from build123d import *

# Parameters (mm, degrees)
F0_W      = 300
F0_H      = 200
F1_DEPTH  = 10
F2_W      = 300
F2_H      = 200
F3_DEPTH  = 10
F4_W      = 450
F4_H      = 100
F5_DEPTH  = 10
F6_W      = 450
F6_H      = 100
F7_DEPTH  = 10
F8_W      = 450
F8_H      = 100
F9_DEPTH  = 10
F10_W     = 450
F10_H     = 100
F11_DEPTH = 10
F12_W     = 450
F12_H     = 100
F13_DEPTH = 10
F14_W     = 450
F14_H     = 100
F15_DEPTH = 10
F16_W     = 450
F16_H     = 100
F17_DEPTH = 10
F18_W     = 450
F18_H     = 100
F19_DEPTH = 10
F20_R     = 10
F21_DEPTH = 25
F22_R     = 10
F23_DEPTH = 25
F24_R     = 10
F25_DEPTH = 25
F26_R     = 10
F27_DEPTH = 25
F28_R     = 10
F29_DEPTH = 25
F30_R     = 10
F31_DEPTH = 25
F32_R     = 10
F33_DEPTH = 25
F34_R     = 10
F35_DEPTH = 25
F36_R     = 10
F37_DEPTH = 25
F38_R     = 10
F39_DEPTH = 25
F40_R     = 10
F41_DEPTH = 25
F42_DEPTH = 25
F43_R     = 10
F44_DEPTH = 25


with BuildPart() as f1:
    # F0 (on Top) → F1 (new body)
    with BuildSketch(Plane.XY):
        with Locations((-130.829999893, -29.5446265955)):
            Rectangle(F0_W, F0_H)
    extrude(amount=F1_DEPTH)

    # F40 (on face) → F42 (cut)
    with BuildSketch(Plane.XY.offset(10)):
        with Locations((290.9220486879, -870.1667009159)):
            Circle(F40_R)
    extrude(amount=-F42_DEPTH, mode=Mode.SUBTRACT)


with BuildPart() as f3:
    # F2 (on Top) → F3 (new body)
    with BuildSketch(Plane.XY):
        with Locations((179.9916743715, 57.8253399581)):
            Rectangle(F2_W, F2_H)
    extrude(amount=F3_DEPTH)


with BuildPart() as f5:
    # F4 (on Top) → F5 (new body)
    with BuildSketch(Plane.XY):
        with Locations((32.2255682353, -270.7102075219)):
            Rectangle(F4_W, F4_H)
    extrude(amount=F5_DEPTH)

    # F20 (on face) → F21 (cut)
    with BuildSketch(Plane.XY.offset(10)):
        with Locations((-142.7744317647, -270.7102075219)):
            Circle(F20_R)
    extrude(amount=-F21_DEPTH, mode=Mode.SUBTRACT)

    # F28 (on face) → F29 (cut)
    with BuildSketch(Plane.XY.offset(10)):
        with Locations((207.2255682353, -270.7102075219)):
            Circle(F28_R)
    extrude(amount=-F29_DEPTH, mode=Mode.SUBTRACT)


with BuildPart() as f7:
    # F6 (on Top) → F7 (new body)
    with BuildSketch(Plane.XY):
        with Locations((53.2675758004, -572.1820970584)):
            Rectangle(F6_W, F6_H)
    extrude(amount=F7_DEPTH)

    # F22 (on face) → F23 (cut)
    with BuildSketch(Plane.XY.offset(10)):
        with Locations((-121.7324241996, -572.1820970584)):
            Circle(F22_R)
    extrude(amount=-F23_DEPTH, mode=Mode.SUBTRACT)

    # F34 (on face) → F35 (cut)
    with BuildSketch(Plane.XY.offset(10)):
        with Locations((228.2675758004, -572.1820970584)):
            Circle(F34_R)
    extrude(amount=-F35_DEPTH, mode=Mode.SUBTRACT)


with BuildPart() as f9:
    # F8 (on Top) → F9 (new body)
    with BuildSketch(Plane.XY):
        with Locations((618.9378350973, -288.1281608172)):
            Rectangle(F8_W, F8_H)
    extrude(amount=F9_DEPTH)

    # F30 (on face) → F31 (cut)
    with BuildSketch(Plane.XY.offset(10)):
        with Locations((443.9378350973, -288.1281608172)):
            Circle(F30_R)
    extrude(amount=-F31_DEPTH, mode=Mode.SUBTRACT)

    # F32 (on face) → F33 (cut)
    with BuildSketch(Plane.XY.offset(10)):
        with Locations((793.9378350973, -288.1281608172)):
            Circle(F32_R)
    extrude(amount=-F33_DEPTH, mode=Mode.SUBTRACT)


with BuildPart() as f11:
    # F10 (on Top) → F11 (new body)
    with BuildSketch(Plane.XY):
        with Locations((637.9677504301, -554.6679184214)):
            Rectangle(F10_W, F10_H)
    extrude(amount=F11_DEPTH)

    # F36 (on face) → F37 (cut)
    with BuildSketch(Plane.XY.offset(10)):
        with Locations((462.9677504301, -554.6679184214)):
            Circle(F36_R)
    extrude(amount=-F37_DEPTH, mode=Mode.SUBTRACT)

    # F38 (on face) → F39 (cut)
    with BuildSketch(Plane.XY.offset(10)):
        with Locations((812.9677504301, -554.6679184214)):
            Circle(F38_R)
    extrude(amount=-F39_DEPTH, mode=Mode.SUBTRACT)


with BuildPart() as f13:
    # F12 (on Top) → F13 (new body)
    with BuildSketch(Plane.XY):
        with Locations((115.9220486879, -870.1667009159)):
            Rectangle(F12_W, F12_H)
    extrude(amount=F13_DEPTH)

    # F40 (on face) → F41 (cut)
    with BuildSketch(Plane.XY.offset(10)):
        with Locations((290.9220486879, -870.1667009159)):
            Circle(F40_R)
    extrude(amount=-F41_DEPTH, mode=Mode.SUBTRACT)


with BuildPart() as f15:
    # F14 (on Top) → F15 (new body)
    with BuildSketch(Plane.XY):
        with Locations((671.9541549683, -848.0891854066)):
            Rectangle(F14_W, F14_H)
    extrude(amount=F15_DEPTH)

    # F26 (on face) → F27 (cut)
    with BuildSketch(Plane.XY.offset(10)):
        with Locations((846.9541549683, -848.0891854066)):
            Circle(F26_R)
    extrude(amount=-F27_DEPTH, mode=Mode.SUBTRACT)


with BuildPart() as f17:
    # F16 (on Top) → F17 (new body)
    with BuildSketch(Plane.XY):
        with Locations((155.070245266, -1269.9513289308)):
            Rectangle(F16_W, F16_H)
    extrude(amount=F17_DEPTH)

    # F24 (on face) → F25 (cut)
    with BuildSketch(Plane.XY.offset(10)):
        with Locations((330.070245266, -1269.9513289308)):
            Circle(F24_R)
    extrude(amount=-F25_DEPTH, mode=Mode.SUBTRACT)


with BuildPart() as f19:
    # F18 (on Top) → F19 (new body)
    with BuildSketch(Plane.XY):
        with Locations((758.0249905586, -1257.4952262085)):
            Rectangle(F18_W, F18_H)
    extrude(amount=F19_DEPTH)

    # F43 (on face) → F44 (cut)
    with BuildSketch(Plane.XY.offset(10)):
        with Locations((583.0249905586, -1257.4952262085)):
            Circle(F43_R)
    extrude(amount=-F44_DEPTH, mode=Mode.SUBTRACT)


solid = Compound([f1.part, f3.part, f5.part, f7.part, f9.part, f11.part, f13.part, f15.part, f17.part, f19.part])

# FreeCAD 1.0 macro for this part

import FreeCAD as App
import Part
import Sketcher


def add_polygon(sketch, points):
    """Adds a closed chain of lines whose ends are joined by coincident constraints."""
    first, n = sketch.GeometryCount, len(points)
    for a, b in zip(points, points[1:] + points[:1]):
        sketch.addGeometry(Part.LineSegment(App.Vector(*a, 0), App.Vector(*b, 0)), False)
    for i in range(n):
        sketch.addConstraint(Sketcher.Constraint("Coincident", first + i, 2, first + (i + 1) % n, 1))

doc = App.newDocument("Part")
body = doc.addObject("PartDesign::Body", "Body")

sketch1 = body.newObject("Sketcher::SketchObject", "Sketch")
sketch1.AttachmentSupport = (doc.getObject("XY_Plane"), [""])
sketch1.MapMode = "FlatFace"
add_polygon(sketch1, [(-280.83, 70.455373), (-280.83, -129.544627), (19.17, -129.544627), (19.17, 70.455373)])
sketch1.addConstraint(Sketcher.Constraint("Vertical", 0))
sketch1.addConstraint(Sketcher.Constraint("Horizontal", 1))
sketch1.addConstraint(Sketcher.Constraint("Vertical", 2))
sketch1.addConstraint(Sketcher.Constraint("Horizontal", 3))
sketch1.addConstraint(Sketcher.Constraint("DistanceX", 1, 1, 1, 2, 300.0))
sketch1.addConstraint(Sketcher.Constraint("DistanceY", 0, 2, 0, 1, 200.0))
sketch1.addConstraint(Sketcher.Constraint("DistanceX", 0, 2, -1, 1, 280.83))
sketch1.addConstraint(Sketcher.Constraint("DistanceY", 0, 2, -1, 1, 129.544627))
pad1 = body.newObject("PartDesign::Pad", "Pad")
pad1.Profile = sketch1
pad1.Length = 10

sketch2 = body.newObject("Sketcher::SketchObject", "Sketch001")
sketch2.AttachmentSupport = (doc.getObject("XY_Plane"), [""])
sketch2.MapMode = "FlatFace"
sketch2.AttachmentOffset = App.Placement(App.Vector(0, 0, 10), App.Rotation())
sketch2.addGeometry(Part.Circle(App.Vector(290.922049, -870.166701, 0), App.Vector(0, 0, 1), 10), False)
sketch2.addConstraint(Sketcher.Constraint("Diameter", 0, 20.0))
sketch2.addConstraint(Sketcher.Constraint("DistanceY", 0, 3, -1, 1, 870.166701))
sketch2.addConstraint(Sketcher.Constraint("DistanceX", -1, 1, 0, 3, 290.922049))
pocket1 = body.newObject("PartDesign::Pocket", "Pocket")
pocket1.Profile = sketch2
pocket1.Length = 25
body2 = doc.addObject("PartDesign::Body", "Body001")

sketch3 = body2.newObject("Sketcher::SketchObject", "Sketch002")
sketch3.AttachmentSupport = (doc.getObject("XY_Plane001"), [""])
sketch3.MapMode = "FlatFace"
add_polygon(sketch3, [(29.991674, 157.82534), (29.991674, -42.17466), (329.991674, -42.17466), (329.991674, 157.82534)])
sketch3.addConstraint(Sketcher.Constraint("Vertical", 0))
sketch3.addConstraint(Sketcher.Constraint("Horizontal", 1))
sketch3.addConstraint(Sketcher.Constraint("Vertical", 2))
sketch3.addConstraint(Sketcher.Constraint("Horizontal", 3))
sketch3.addConstraint(Sketcher.Constraint("DistanceX", 1, 1, 1, 2, 300.0))
sketch3.addConstraint(Sketcher.Constraint("DistanceY", 0, 2, 0, 1, 200.0))
sketch3.addConstraint(Sketcher.Constraint("DistanceY", 0, 2, -1, 1, 42.17466))
sketch3.addConstraint(Sketcher.Constraint("DistanceX", -1, 1, 0, 2, 29.991674))
pad2 = body2.newObject("PartDesign::Pad", "Pad001")
pad2.Profile = sketch3
pad2.Length = 10
body3 = doc.addObject("PartDesign::Body", "Body002")

sketch4 = body3.newObject("Sketcher::SketchObject", "Sketch003")
sketch4.AttachmentSupport = (doc.getObject("XY_Plane002"), [""])
sketch4.MapMode = "FlatFace"
add_polygon(sketch4, [(-192.774432, -220.710208), (-192.774432, -320.710208), (257.225568, -320.710208), (257.225568, -220.710208)])
sketch4.addConstraint(Sketcher.Constraint("Vertical", 0))
sketch4.addConstraint(Sketcher.Constraint("Horizontal", 1))
sketch4.addConstraint(Sketcher.Constraint("Vertical", 2))
sketch4.addConstraint(Sketcher.Constraint("Horizontal", 3))
sketch4.addConstraint(Sketcher.Constraint("DistanceX", 1, 1, 1, 2, 450.0))
sketch4.addConstraint(Sketcher.Constraint("DistanceY", 0, 2, 0, 1, 100.0))
sketch4.addConstraint(Sketcher.Constraint("DistanceX", 0, 2, -1, 1, 192.774432))
sketch4.addConstraint(Sketcher.Constraint("DistanceY", 0, 2, -1, 1, 320.710208))
pad3 = body3.newObject("PartDesign::Pad", "Pad002")
pad3.Profile = sketch4
pad3.Length = 10

sketch5 = body3.newObject("Sketcher::SketchObject", "Sketch004")
sketch5.AttachmentSupport = (doc.getObject("XY_Plane002"), [""])
sketch5.MapMode = "FlatFace"
sketch5.AttachmentOffset = App.Placement(App.Vector(0, 0, 10), App.Rotation())
sketch5.addGeometry(Part.Circle(App.Vector(-142.774432, -270.710208, 0), App.Vector(0, 0, 1), 10), False)
sketch5.addConstraint(Sketcher.Constraint("Diameter", 0, 20.0))
sketch5.addConstraint(Sketcher.Constraint("DistanceX", 0, 3, -1, 1, 142.774432))
sketch5.addConstraint(Sketcher.Constraint("DistanceY", 0, 3, -1, 1, 270.710208))
pocket2 = body3.newObject("PartDesign::Pocket", "Pocket001")
pocket2.Profile = sketch5
pocket2.Length = 25

sketch6 = body3.newObject("Sketcher::SketchObject", "Sketch005")
sketch6.AttachmentSupport = (doc.getObject("XY_Plane002"), [""])
sketch6.MapMode = "FlatFace"
sketch6.AttachmentOffset = App.Placement(App.Vector(0, 0, 10), App.Rotation())
sketch6.addGeometry(Part.Circle(App.Vector(207.225568, -270.710208, 0), App.Vector(0, 0, 1), 10), False)
sketch6.addConstraint(Sketcher.Constraint("Diameter", 0, 20.0))
sketch6.addConstraint(Sketcher.Constraint("DistanceX", -1, 1, 0, 3, 207.225568))
sketch6.addConstraint(Sketcher.Constraint("DistanceY", 0, 3, -1, 1, 270.710208))
pocket3 = body3.newObject("PartDesign::Pocket", "Pocket002")
pocket3.Profile = sketch6
pocket3.Length = 25
body4 = doc.addObject("PartDesign::Body", "Body003")

sketch7 = body4.newObject("Sketcher::SketchObject", "Sketch006")
sketch7.AttachmentSupport = (doc.getObject("XY_Plane003"), [""])
sketch7.MapMode = "FlatFace"
add_polygon(sketch7, [(-171.732424, -522.182097), (-171.732424, -622.182097), (278.267576, -622.182097), (278.267576, -522.182097)])
sketch7.addConstraint(Sketcher.Constraint("Vertical", 0))
sketch7.addConstraint(Sketcher.Constraint("Horizontal", 1))
sketch7.addConstraint(Sketcher.Constraint("Vertical", 2))
sketch7.addConstraint(Sketcher.Constraint("Horizontal", 3))
sketch7.addConstraint(Sketcher.Constraint("DistanceX", 1, 1, 1, 2, 450.0))
sketch7.addConstraint(Sketcher.Constraint("DistanceY", 0, 2, 0, 1, 100.0))
sketch7.addConstraint(Sketcher.Constraint("DistanceX", 0, 2, -1, 1, 171.732424))
sketch7.addConstraint(Sketcher.Constraint("DistanceY", 0, 2, -1, 1, 622.182097))
pad4 = body4.newObject("PartDesign::Pad", "Pad003")
pad4.Profile = sketch7
pad4.Length = 10

sketch8 = body4.newObject("Sketcher::SketchObject", "Sketch007")
sketch8.AttachmentSupport = (doc.getObject("XY_Plane003"), [""])
sketch8.MapMode = "FlatFace"
sketch8.AttachmentOffset = App.Placement(App.Vector(0, 0, 10), App.Rotation())
sketch8.addGeometry(Part.Circle(App.Vector(-121.732424, -572.182097, 0), App.Vector(0, 0, 1), 10), False)
sketch8.addConstraint(Sketcher.Constraint("Diameter", 0, 20.0))
sketch8.addConstraint(Sketcher.Constraint("DistanceX", 0, 3, -1, 1, 121.732424))
sketch8.addConstraint(Sketcher.Constraint("DistanceY", 0, 3, -1, 1, 572.182097))
pocket4 = body4.newObject("PartDesign::Pocket", "Pocket003")
pocket4.Profile = sketch8
pocket4.Length = 25

sketch9 = body4.newObject("Sketcher::SketchObject", "Sketch008")
sketch9.AttachmentSupport = (doc.getObject("XY_Plane003"), [""])
sketch9.MapMode = "FlatFace"
sketch9.AttachmentOffset = App.Placement(App.Vector(0, 0, 10), App.Rotation())
sketch9.addGeometry(Part.Circle(App.Vector(228.267576, -572.182097, 0), App.Vector(0, 0, 1), 10), False)
sketch9.addConstraint(Sketcher.Constraint("Diameter", 0, 20.0))
sketch9.addConstraint(Sketcher.Constraint("DistanceX", -1, 1, 0, 3, 228.267576))
sketch9.addConstraint(Sketcher.Constraint("DistanceY", 0, 3, -1, 1, 572.182097))
pocket5 = body4.newObject("PartDesign::Pocket", "Pocket004")
pocket5.Profile = sketch9
pocket5.Length = 25
body5 = doc.addObject("PartDesign::Body", "Body004")

sketch10 = body5.newObject("Sketcher::SketchObject", "Sketch009")
sketch10.AttachmentSupport = (doc.getObject("XY_Plane004"), [""])
sketch10.MapMode = "FlatFace"
add_polygon(sketch10, [(393.937835, -238.128161), (393.937835, -338.128161), (843.937835, -338.128161), (843.937835, -238.128161)])
sketch10.addConstraint(Sketcher.Constraint("Vertical", 0))
sketch10.addConstraint(Sketcher.Constraint("Horizontal", 1))
sketch10.addConstraint(Sketcher.Constraint("Vertical", 2))
sketch10.addConstraint(Sketcher.Constraint("Horizontal", 3))
sketch10.addConstraint(Sketcher.Constraint("DistanceX", 1, 1, 1, 2, 450.0))
sketch10.addConstraint(Sketcher.Constraint("DistanceY", 0, 2, 0, 1, 100.0))
sketch10.addConstraint(Sketcher.Constraint("DistanceY", 0, 2, -1, 1, 338.128161))
sketch10.addConstraint(Sketcher.Constraint("DistanceX", -1, 1, 0, 2, 393.937835))
pad5 = body5.newObject("PartDesign::Pad", "Pad004")
pad5.Profile = sketch10
pad5.Length = 10

sketch11 = body5.newObject("Sketcher::SketchObject", "Sketch010")
sketch11.AttachmentSupport = (doc.getObject("XY_Plane004"), [""])
sketch11.MapMode = "FlatFace"
sketch11.AttachmentOffset = App.Placement(App.Vector(0, 0, 10), App.Rotation())
sketch11.addGeometry(Part.Circle(App.Vector(443.937835, -288.128161, 0), App.Vector(0, 0, 1), 10), False)
sketch11.addConstraint(Sketcher.Constraint("Diameter", 0, 20.0))
sketch11.addConstraint(Sketcher.Constraint("DistanceY", 0, 3, -1, 1, 288.128161))
sketch11.addConstraint(Sketcher.Constraint("DistanceX", -1, 1, 0, 3, 443.937835))
pocket6 = body5.newObject("PartDesign::Pocket", "Pocket005")
pocket6.Profile = sketch11
pocket6.Length = 25

sketch12 = body5.newObject("Sketcher::SketchObject", "Sketch011")
sketch12.AttachmentSupport = (doc.getObject("XY_Plane004"), [""])
sketch12.MapMode = "FlatFace"
sketch12.AttachmentOffset = App.Placement(App.Vector(0, 0, 10), App.Rotation())
sketch12.addGeometry(Part.Circle(App.Vector(793.937835, -288.128161, 0), App.Vector(0, 0, 1), 10), False)
sketch12.addConstraint(Sketcher.Constraint("Diameter", 0, 20.0))
sketch12.addConstraint(Sketcher.Constraint("DistanceY", 0, 3, -1, 1, 288.128161))
sketch12.addConstraint(Sketcher.Constraint("DistanceX", -1, 1, 0, 3, 793.937835))
pocket7 = body5.newObject("PartDesign::Pocket", "Pocket006")
pocket7.Profile = sketch12
pocket7.Length = 25
body6 = doc.addObject("PartDesign::Body", "Body005")

sketch13 = body6.newObject("Sketcher::SketchObject", "Sketch012")
sketch13.AttachmentSupport = (doc.getObject("XY_Plane005"), [""])
sketch13.MapMode = "FlatFace"
add_polygon(sketch13, [(412.96775, -504.667918), (412.96775, -604.667918), (862.96775, -604.667918), (862.96775, -504.667918)])
sketch13.addConstraint(Sketcher.Constraint("Vertical", 0))
sketch13.addConstraint(Sketcher.Constraint("Horizontal", 1))
sketch13.addConstraint(Sketcher.Constraint("Vertical", 2))
sketch13.addConstraint(Sketcher.Constraint("Horizontal", 3))
sketch13.addConstraint(Sketcher.Constraint("DistanceX", 1, 1, 1, 2, 450.0))
sketch13.addConstraint(Sketcher.Constraint("DistanceY", 0, 2, 0, 1, 100.0))
sketch13.addConstraint(Sketcher.Constraint("DistanceX", -1, 1, 0, 2, 412.96775))
sketch13.addConstraint(Sketcher.Constraint("DistanceY", 0, 2, -1, 1, 604.667918))
pad6 = body6.newObject("PartDesign::Pad", "Pad005")
pad6.Profile = sketch13
pad6.Length = 10

sketch14 = body6.newObject("Sketcher::SketchObject", "Sketch013")
sketch14.AttachmentSupport = (doc.getObject("XY_Plane005"), [""])
sketch14.MapMode = "FlatFace"
sketch14.AttachmentOffset = App.Placement(App.Vector(0, 0, 10), App.Rotation())
sketch14.addGeometry(Part.Circle(App.Vector(462.96775, -554.667918, 0), App.Vector(0, 0, 1), 10), False)
sketch14.addConstraint(Sketcher.Constraint("Diameter", 0, 20.0))
sketch14.addConstraint(Sketcher.Constraint("DistanceX", -1, 1, 0, 3, 462.96775))
sketch14.addConstraint(Sketcher.Constraint("DistanceY", 0, 3, -1, 1, 554.667918))
pocket8 = body6.newObject("PartDesign::Pocket", "Pocket007")
pocket8.Profile = sketch14
pocket8.Length = 25

sketch15 = body6.newObject("Sketcher::SketchObject", "Sketch014")
sketch15.AttachmentSupport = (doc.getObject("XY_Plane005"), [""])
sketch15.MapMode = "FlatFace"
sketch15.AttachmentOffset = App.Placement(App.Vector(0, 0, 10), App.Rotation())
sketch15.addGeometry(Part.Circle(App.Vector(812.96775, -554.667918, 0), App.Vector(0, 0, 1), 10), False)
sketch15.addConstraint(Sketcher.Constraint("Diameter", 0, 20.0))
sketch15.addConstraint(Sketcher.Constraint("DistanceX", -1, 1, 0, 3, 812.96775))
sketch15.addConstraint(Sketcher.Constraint("DistanceY", 0, 3, -1, 1, 554.667918))
pocket9 = body6.newObject("PartDesign::Pocket", "Pocket008")
pocket9.Profile = sketch15
pocket9.Length = 25
body7 = doc.addObject("PartDesign::Body", "Body006")

sketch16 = body7.newObject("Sketcher::SketchObject", "Sketch015")
sketch16.AttachmentSupport = (doc.getObject("XY_Plane006"), [""])
sketch16.MapMode = "FlatFace"
add_polygon(sketch16, [(-109.077951, -820.166701), (-109.077951, -920.166701), (340.922049, -920.166701), (340.922049, -820.166701)])
sketch16.addConstraint(Sketcher.Constraint("Vertical", 0))
sketch16.addConstraint(Sketcher.Constraint("Horizontal", 1))
sketch16.addConstraint(Sketcher.Constraint("Vertical", 2))
sketch16.addConstraint(Sketcher.Constraint("Horizontal", 3))
sketch16.addConstraint(Sketcher.Constraint("DistanceX", 1, 1, 1, 2, 450.0))
sketch16.addConstraint(Sketcher.Constraint("DistanceY", 0, 2, 0, 1, 100.0))
sketch16.addConstraint(Sketcher.Constraint("DistanceY", 0, 2, -1, 1, 920.166701))
sketch16.addConstraint(Sketcher.Constraint("DistanceX", 0, 2, -1, 1, 109.077951))
pad7 = body7.newObject("PartDesign::Pad", "Pad006")
pad7.Profile = sketch16
pad7.Length = 10

sketch17 = body7.newObject("Sketcher::SketchObject", "Sketch016")
sketch17.AttachmentSupport = (doc.getObject("XY_Plane006"), [""])
sketch17.MapMode = "FlatFace"
sketch17.AttachmentOffset = App.Placement(App.Vector(0, 0, 10), App.Rotation())
sketch17.addGeometry(Part.Circle(App.Vector(290.922049, -870.166701, 0), App.Vector(0, 0, 1), 10), False)
sketch17.addConstraint(Sketcher.Constraint("Diameter", 0, 20.0))
sketch17.addConstraint(Sketcher.Constraint("DistanceY", 0, 3, -1, 1, 870.166701))
sketch17.addConstraint(Sketcher.Constraint("DistanceX", -1, 1, 0, 3, 290.922049))
pocket10 = body7.newObject("PartDesign::Pocket", "Pocket009")
pocket10.Profile = sketch17
pocket10.Length = 25
body8 = doc.addObject("PartDesign::Body", "Body007")

sketch18 = body8.newObject("Sketcher::SketchObject", "Sketch017")
sketch18.AttachmentSupport = (doc.getObject("XY_Plane007"), [""])
sketch18.MapMode = "FlatFace"
add_polygon(sketch18, [(446.954155, -798.089185), (446.954155, -898.089185), (896.954155, -898.089185), (896.954155, -798.089185)])
sketch18.addConstraint(Sketcher.Constraint("Vertical", 0))
sketch18.addConstraint(Sketcher.Constraint("Horizontal", 1))
sketch18.addConstraint(Sketcher.Constraint("Vertical", 2))
sketch18.addConstraint(Sketcher.Constraint("Horizontal", 3))
sketch18.addConstraint(Sketcher.Constraint("DistanceX", 1, 1, 1, 2, 450.0))
sketch18.addConstraint(Sketcher.Constraint("DistanceY", 0, 2, 0, 1, 100.0))
sketch18.addConstraint(Sketcher.Constraint("DistanceX", -1, 1, 0, 2, 446.954155))
sketch18.addConstraint(Sketcher.Constraint("DistanceY", 0, 2, -1, 1, 898.089185))
pad8 = body8.newObject("PartDesign::Pad", "Pad007")
pad8.Profile = sketch18
pad8.Length = 10

sketch19 = body8.newObject("Sketcher::SketchObject", "Sketch018")
sketch19.AttachmentSupport = (doc.getObject("XY_Plane007"), [""])
sketch19.MapMode = "FlatFace"
sketch19.AttachmentOffset = App.Placement(App.Vector(0, 0, 10), App.Rotation())
sketch19.addGeometry(Part.Circle(App.Vector(846.954155, -848.089185, 0), App.Vector(0, 0, 1), 10), False)
sketch19.addConstraint(Sketcher.Constraint("Diameter", 0, 20.0))
sketch19.addConstraint(Sketcher.Constraint("DistanceX", -1, 1, 0, 3, 846.954155))
sketch19.addConstraint(Sketcher.Constraint("DistanceY", 0, 3, -1, 1, 848.089185))
pocket11 = body8.newObject("PartDesign::Pocket", "Pocket010")
pocket11.Profile = sketch19
pocket11.Length = 25
body9 = doc.addObject("PartDesign::Body", "Body008")

sketch20 = body9.newObject("Sketcher::SketchObject", "Sketch019")
sketch20.AttachmentSupport = (doc.getObject("XY_Plane008"), [""])
sketch20.MapMode = "FlatFace"
add_polygon(sketch20, [(-69.929755, -1219.951329), (-69.929755, -1319.951329), (380.070245, -1319.951329), (380.070245, -1219.951329)])
sketch20.addConstraint(Sketcher.Constraint("Vertical", 0))
sketch20.addConstraint(Sketcher.Constraint("Horizontal", 1))
sketch20.addConstraint(Sketcher.Constraint("Vertical", 2))
sketch20.addConstraint(Sketcher.Constraint("Horizontal", 3))
sketch20.addConstraint(Sketcher.Constraint("DistanceX", 1, 1, 1, 2, 450.0))
sketch20.addConstraint(Sketcher.Constraint("DistanceY", 0, 2, 0, 1, 100.0))
sketch20.addConstraint(Sketcher.Constraint("DistanceY", 0, 2, -1, 1, 1319.951329))
sketch20.addConstraint(Sketcher.Constraint("DistanceX", 0, 2, -1, 1, 69.929755))
pad9 = body9.newObject("PartDesign::Pad", "Pad008")
pad9.Profile = sketch20
pad9.Length = 10

sketch21 = body9.newObject("Sketcher::SketchObject", "Sketch020")
sketch21.AttachmentSupport = (doc.getObject("XY_Plane008"), [""])
sketch21.MapMode = "FlatFace"
sketch21.AttachmentOffset = App.Placement(App.Vector(0, 0, 10), App.Rotation())
sketch21.addGeometry(Part.Circle(App.Vector(330.070245, -1269.951329, 0), App.Vector(0, 0, 1), 10), False)
sketch21.addConstraint(Sketcher.Constraint("Diameter", 0, 20.0))
sketch21.addConstraint(Sketcher.Constraint("DistanceY", 0, 3, -1, 1, 1269.951329))
sketch21.addConstraint(Sketcher.Constraint("DistanceX", -1, 1, 0, 3, 330.070245))
pocket12 = body9.newObject("PartDesign::Pocket", "Pocket011")
pocket12.Profile = sketch21
pocket12.Length = 25
body10 = doc.addObject("PartDesign::Body", "Body009")

sketch22 = body10.newObject("Sketcher::SketchObject", "Sketch021")
sketch22.AttachmentSupport = (doc.getObject("XY_Plane009"), [""])
sketch22.MapMode = "FlatFace"
add_polygon(sketch22, [(533.024991, -1207.495226), (533.024991, -1307.495226), (983.024991, -1307.495226), (983.024991, -1207.495226)])
sketch22.addConstraint(Sketcher.Constraint("Vertical", 0))
sketch22.addConstraint(Sketcher.Constraint("Horizontal", 1))
sketch22.addConstraint(Sketcher.Constraint("Vertical", 2))
sketch22.addConstraint(Sketcher.Constraint("Horizontal", 3))
sketch22.addConstraint(Sketcher.Constraint("DistanceX", 1, 1, 1, 2, 450.0))
sketch22.addConstraint(Sketcher.Constraint("DistanceY", 0, 2, 0, 1, 100.0))
sketch22.addConstraint(Sketcher.Constraint("DistanceX", -1, 1, 0, 2, 533.024991))
sketch22.addConstraint(Sketcher.Constraint("DistanceY", 0, 2, -1, 1, 1307.495226))
pad10 = body10.newObject("PartDesign::Pad", "Pad009")
pad10.Profile = sketch22
pad10.Length = 10

sketch23 = body10.newObject("Sketcher::SketchObject", "Sketch022")
sketch23.AttachmentSupport = (doc.getObject("XY_Plane009"), [""])
sketch23.MapMode = "FlatFace"
sketch23.AttachmentOffset = App.Placement(App.Vector(0, 0, 10), App.Rotation())
sketch23.addGeometry(Part.Circle(App.Vector(583.024991, -1257.495226, 0), App.Vector(0, 0, 1), 10), False)
sketch23.addConstraint(Sketcher.Constraint("Diameter", 0, 20.0))
sketch23.addConstraint(Sketcher.Constraint("DistanceX", -1, 1, 0, 3, 583.024991))
sketch23.addConstraint(Sketcher.Constraint("DistanceY", 0, 3, -1, 1, 1257.495226))
pocket13 = body10.newObject("PartDesign::Pocket", "Pocket012")
pocket13.Profile = sketch23
pocket13.Length = 25

doc.recompute()
